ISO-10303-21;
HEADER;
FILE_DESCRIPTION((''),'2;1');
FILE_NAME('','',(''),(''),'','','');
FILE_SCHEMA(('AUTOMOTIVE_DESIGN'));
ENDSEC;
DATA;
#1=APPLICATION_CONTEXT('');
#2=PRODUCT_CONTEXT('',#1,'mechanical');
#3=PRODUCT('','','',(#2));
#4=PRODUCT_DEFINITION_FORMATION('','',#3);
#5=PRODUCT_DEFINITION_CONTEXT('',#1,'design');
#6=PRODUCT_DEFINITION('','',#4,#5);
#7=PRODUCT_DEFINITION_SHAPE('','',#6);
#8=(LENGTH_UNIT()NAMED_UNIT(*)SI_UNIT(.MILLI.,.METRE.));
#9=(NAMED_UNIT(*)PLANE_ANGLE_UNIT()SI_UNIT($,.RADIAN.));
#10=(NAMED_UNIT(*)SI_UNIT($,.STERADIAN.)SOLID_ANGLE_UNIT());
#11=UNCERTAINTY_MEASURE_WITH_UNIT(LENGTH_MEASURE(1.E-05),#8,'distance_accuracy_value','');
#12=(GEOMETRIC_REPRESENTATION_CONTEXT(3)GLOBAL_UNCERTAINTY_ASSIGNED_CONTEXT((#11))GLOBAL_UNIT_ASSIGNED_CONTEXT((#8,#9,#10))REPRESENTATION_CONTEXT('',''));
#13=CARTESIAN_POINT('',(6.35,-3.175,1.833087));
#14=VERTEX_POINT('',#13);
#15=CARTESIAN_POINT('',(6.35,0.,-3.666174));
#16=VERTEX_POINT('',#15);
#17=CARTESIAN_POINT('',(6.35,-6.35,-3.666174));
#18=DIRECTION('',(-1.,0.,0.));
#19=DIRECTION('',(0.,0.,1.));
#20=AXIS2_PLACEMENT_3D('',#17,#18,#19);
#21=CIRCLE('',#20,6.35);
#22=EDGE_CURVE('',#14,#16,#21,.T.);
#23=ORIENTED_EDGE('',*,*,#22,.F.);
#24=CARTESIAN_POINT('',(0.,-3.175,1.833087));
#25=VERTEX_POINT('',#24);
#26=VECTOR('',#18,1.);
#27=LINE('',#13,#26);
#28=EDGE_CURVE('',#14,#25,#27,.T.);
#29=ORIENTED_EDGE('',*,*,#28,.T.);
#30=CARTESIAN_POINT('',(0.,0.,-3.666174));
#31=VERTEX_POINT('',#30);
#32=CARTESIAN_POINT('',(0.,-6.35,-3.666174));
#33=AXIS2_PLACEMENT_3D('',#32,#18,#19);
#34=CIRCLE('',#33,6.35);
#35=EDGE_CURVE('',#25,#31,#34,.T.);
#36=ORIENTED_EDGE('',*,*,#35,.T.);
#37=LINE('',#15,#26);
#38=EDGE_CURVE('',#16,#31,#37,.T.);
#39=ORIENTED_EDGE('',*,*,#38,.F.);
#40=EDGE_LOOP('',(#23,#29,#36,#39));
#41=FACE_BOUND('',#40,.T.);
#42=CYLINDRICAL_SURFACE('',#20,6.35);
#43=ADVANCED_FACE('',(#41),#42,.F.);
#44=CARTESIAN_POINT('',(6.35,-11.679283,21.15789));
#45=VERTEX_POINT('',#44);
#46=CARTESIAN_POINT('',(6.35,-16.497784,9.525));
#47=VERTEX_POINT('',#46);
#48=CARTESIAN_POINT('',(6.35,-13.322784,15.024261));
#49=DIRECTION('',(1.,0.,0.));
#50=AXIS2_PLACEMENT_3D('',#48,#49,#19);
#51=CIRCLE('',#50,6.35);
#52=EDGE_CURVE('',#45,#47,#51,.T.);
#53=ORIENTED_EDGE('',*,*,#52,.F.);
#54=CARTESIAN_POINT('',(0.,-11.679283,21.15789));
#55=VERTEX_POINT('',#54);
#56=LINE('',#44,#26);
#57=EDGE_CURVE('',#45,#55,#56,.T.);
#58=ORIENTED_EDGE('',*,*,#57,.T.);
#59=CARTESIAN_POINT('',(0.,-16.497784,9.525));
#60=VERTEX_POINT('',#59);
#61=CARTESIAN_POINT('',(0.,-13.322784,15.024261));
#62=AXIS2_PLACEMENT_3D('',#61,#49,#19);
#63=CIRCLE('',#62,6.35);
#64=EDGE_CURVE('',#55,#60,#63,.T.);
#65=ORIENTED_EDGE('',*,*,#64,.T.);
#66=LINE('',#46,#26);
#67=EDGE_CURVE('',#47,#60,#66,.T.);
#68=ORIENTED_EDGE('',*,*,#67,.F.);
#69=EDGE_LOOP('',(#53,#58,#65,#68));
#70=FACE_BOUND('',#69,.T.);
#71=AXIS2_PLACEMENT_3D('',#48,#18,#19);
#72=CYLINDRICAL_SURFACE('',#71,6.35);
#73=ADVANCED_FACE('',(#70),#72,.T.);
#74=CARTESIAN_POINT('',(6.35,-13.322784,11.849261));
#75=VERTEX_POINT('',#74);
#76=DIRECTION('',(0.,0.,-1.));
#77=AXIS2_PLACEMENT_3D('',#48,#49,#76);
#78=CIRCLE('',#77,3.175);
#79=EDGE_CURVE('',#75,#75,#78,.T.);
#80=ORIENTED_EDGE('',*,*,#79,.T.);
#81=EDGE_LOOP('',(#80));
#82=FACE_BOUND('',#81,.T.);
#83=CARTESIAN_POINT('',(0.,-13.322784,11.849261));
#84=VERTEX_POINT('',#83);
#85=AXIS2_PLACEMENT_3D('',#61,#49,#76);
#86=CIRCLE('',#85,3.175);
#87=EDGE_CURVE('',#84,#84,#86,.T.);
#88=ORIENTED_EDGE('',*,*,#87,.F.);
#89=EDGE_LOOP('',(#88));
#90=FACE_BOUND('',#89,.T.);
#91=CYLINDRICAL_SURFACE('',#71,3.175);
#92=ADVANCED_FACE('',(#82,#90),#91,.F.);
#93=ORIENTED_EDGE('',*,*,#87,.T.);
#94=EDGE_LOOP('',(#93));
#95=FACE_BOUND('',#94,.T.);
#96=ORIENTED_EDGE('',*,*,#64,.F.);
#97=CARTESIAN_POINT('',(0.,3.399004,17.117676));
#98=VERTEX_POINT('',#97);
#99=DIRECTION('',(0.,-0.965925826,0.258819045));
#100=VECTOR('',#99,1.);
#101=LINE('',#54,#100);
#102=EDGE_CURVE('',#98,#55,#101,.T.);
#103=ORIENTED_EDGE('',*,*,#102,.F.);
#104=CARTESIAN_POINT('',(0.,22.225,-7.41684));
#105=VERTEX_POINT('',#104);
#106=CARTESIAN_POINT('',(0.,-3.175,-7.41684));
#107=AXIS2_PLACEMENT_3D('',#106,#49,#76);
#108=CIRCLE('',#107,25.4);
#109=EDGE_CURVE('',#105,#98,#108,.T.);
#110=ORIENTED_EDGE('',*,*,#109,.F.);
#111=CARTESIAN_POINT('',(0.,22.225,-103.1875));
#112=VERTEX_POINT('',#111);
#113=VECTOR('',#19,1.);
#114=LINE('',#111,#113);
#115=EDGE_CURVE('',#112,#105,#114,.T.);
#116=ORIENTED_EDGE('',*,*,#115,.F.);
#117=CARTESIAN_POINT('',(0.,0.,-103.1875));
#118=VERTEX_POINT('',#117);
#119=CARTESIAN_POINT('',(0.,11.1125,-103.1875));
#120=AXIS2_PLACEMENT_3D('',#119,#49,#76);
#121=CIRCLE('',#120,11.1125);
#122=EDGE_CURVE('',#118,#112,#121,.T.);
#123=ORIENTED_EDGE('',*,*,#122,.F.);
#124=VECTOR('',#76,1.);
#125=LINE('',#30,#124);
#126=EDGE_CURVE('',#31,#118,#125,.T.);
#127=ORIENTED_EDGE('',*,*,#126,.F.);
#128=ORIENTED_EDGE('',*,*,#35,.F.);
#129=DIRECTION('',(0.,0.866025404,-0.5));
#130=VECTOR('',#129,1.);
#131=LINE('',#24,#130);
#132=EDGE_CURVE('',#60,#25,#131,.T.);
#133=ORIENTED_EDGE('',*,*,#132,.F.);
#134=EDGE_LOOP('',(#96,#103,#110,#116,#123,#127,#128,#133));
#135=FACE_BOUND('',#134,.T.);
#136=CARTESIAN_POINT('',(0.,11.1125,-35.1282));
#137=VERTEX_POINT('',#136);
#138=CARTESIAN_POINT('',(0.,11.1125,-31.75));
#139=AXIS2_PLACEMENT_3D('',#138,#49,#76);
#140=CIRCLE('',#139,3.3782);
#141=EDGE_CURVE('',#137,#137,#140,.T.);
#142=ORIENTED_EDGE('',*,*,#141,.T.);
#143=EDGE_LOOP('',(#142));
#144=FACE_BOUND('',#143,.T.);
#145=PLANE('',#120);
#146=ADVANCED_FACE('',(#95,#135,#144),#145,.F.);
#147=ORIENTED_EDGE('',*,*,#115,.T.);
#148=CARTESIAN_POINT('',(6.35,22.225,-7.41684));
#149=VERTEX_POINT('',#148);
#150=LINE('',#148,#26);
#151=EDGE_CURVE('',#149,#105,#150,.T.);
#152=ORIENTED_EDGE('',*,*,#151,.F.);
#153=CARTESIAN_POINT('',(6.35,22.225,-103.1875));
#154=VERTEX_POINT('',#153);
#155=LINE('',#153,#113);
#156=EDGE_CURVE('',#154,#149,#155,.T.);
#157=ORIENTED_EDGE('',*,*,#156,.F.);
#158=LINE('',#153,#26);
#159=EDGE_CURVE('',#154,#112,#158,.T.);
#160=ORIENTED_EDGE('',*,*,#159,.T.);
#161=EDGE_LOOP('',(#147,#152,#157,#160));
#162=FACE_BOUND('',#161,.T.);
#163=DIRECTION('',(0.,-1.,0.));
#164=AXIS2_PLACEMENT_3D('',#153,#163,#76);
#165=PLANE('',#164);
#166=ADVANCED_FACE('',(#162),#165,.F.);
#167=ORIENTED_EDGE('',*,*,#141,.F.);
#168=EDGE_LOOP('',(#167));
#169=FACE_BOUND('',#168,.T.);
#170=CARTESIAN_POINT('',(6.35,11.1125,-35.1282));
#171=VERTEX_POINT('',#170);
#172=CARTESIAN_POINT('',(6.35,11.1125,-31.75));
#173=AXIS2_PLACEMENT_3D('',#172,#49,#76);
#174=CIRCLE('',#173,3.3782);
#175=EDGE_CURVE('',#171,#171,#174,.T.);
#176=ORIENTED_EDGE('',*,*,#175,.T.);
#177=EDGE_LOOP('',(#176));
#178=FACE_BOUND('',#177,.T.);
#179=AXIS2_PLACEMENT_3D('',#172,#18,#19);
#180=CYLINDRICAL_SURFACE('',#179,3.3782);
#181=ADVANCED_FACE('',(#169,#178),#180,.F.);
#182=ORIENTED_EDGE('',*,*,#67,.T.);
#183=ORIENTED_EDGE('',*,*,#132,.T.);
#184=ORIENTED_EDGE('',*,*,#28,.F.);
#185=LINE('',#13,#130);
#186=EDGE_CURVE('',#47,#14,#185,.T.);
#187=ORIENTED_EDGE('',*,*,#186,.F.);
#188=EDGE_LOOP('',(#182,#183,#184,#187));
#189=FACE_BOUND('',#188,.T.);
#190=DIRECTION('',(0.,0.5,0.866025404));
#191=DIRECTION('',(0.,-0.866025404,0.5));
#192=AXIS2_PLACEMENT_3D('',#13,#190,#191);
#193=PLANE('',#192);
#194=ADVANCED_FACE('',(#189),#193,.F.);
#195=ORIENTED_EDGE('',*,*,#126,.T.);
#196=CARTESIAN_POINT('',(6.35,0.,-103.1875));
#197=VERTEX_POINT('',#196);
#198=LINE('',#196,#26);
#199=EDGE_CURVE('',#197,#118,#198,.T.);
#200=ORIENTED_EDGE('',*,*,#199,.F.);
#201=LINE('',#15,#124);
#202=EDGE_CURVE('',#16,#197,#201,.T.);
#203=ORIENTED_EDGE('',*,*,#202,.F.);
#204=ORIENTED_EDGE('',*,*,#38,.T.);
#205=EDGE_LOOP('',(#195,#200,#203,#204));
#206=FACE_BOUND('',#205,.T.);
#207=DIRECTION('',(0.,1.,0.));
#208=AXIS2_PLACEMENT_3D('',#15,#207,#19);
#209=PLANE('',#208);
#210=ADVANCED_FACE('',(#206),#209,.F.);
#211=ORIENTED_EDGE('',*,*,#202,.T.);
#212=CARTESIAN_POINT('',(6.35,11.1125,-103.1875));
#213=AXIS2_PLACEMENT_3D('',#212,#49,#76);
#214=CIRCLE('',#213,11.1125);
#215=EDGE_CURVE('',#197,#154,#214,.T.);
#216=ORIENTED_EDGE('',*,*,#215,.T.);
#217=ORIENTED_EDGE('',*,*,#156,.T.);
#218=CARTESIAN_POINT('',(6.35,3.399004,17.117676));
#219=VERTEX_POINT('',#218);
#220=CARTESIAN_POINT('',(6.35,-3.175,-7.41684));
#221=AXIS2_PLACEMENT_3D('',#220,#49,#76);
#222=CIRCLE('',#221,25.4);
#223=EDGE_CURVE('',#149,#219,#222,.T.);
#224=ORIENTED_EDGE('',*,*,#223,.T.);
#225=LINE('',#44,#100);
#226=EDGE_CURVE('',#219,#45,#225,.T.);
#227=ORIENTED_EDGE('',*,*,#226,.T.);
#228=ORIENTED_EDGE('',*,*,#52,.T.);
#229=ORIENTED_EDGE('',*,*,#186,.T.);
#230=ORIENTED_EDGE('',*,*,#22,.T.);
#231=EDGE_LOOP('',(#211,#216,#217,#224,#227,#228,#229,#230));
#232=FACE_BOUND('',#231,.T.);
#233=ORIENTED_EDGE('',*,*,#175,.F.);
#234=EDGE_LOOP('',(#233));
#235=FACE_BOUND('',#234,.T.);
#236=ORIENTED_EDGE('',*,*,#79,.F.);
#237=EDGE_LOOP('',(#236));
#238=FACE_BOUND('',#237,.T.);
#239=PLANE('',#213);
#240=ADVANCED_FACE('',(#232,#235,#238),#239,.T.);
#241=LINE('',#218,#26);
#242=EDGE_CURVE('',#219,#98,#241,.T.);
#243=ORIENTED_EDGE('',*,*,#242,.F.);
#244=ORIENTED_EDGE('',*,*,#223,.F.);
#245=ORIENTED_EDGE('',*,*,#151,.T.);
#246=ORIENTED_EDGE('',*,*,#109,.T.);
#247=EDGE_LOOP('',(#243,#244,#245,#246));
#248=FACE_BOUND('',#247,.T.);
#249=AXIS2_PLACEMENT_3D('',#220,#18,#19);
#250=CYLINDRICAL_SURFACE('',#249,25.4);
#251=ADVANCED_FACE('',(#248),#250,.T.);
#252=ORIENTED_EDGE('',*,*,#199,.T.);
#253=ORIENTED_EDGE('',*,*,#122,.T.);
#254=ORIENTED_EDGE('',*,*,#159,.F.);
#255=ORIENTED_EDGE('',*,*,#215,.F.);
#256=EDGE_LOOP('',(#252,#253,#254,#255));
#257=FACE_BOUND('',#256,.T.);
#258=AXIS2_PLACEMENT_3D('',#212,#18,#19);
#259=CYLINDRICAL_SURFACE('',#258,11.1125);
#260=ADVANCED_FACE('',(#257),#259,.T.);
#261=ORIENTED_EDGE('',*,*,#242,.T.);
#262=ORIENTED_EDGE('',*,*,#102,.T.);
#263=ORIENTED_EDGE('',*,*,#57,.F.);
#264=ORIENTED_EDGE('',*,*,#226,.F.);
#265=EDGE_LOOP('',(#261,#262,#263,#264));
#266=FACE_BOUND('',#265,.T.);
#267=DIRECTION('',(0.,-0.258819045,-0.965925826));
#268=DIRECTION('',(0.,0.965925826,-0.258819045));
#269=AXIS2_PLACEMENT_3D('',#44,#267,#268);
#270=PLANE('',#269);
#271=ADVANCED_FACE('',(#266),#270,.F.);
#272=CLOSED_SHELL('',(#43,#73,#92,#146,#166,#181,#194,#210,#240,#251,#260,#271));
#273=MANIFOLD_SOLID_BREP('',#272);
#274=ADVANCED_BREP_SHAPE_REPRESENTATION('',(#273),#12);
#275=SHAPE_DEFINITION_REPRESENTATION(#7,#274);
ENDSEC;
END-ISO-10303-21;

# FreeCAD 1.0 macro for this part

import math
import FreeCAD as App
import Part
import Sketcher

V = App.Vector
Q = App.Units.Quantity

doc = App.newDocument("Part")
body = doc.addObject("PartDesign::Body", "Body")

sketch1 = body.newObject("Sketcher::SketchObject", "Sketch")
sketch1.AttachmentSupport = (doc.getObject("YZ_Plane"), [""])
sketch1.MapMode = "FlatFace"
sketch1.addGeometry(Part.LineSegment(V(0, -3.7, 0), V(0, -103.2, 0)), False)
sketch1.addGeometry(Part.ArcOfCircle(Part.Circle(V(11.1, -103.2, 0), V(0, 0, 1), 11.1), math.radians(180), math.radians(360)), False)
sketch1.addGeometry(Part.LineSegment(V(22.2, -103.2, 0), V(22.2, -7.4, 0)), False)
sketch1.addGeometry(Part.ArcOfCircle(Part.Circle(V(-3.2, -7.4, 0), V(0, 0, 1), 25.4), math.radians(0), math.radians(75)), False)
sketch1.addGeometry(Part.LineSegment(V(3.4, 17.1, 0), V(-11.7, 21.2, 0)), False)
sketch1.addGeometry(Part.ArcOfCircle(Part.Circle(V(-13.3, 15, 0), V(0, 0, 1), 6.3), math.radians(75), math.radians(240)), False)
sketch1.addGeometry(Part.LineSegment(V(-16.5, 9.5, 0), V(-3.2, 1.8, 0)), False)
sketch1.addGeometry(Part.ArcOfCircle(Part.Circle(V(-6.3, -3.7, 0), V(0, 0, 1), 6.3), math.radians(0), math.radians(60)), False)
sketch1.addGeometry(Part.Circle(V(-13.3, 15, 0), V(0, 0, 1), 3.2), False)
sketch1.addGeometry(Part.Circle(V(11.1, -31.8, 0), V(0, 0, 1), 3.4), False)
sketch1.addConstraint(Sketcher.Constraint("Tangent", 0, 2, 1, 1))
sketch1.addConstraint(Sketcher.Constraint("Tangent", 1, 2, 2, 1))
sketch1.addConstraint(Sketcher.Constraint("Tangent", 2, 2, 3, 1))
sketch1.addConstraint(Sketcher.Constraint("Tangent", 3, 2, 4, 1))
sketch1.addConstraint(Sketcher.Constraint("Tangent", 4, 2, 5, 1))
sketch1.addConstraint(Sketcher.Constraint("Tangent", 5, 2, 6, 1))
sketch1.addConstraint(Sketcher.Constraint("Tangent", 6, 2, 7, 2))
sketch1.addConstraint(Sketcher.Constraint("Tangent", 7, 1, 0, 1))
sketch1.addConstraint(Sketcher.Constraint("Vertical", 0))
sketch1.addConstraint(Sketcher.Constraint("Vertical", 2))
sketch1.addConstraint(Sketcher.Constraint("Coincident", 8, 3, 5, 3))
sketch1.addConstraint(Sketcher.Constraint("Equal", 5, 7))
sketch1.addConstraint(Sketcher.Constraint("PointOnObject", 0, 2, -2))
sketch1.addConstraint(Sketcher.Constraint("Vertical", 1, 3, 9, 3))
sketch1.addConstraint(Sketcher.Constraint("Vertical", 3, 3, 6, 2))
sketch1.addConstraint(Sketcher.Constraint("Radius", 3, Q("1 in")))
sketch1.addConstraint(Sketcher.Constraint("Diameter", 8, Q("0.25 in")))
sketch1.addConstraint(Sketcher.Constraint("Radius", 5, Q("0.25 in")))
sketch1.addConstraint(Sketcher.Constraint("Diameter", 9, Q("0.266 in")))
sketch1.addConstraint(Sketcher.Constraint("Angle", 4, Q("165 deg")))
sketch1.addConstraint(Sketcher.Constraint("Angle", 6, Q("-30 deg")))
sketch1.addConstraint(Sketcher.Constraint("DistanceY", 9, 3, -1, 1, Q("1.25 in")))
sketch1.addConstraint(Sketcher.Constraint("DistanceY", 1, 3, -1, 1, Q("4.0625 in")))
sketch1.addConstraint(Sketcher.Constraint("DistanceY", -1, 1, 5, 2, Q("0.375 in")))
sketch1.addConstraint(Sketcher.Constraint("DistanceY", 2, 1, 2, 2, Q("95.77066 mm")))
pad1 = body.newObject("PartDesign::Pad", "Pad")
pad1.Profile = sketch1
pad1.Length = Q("0.25 in")

doc.recompute()
